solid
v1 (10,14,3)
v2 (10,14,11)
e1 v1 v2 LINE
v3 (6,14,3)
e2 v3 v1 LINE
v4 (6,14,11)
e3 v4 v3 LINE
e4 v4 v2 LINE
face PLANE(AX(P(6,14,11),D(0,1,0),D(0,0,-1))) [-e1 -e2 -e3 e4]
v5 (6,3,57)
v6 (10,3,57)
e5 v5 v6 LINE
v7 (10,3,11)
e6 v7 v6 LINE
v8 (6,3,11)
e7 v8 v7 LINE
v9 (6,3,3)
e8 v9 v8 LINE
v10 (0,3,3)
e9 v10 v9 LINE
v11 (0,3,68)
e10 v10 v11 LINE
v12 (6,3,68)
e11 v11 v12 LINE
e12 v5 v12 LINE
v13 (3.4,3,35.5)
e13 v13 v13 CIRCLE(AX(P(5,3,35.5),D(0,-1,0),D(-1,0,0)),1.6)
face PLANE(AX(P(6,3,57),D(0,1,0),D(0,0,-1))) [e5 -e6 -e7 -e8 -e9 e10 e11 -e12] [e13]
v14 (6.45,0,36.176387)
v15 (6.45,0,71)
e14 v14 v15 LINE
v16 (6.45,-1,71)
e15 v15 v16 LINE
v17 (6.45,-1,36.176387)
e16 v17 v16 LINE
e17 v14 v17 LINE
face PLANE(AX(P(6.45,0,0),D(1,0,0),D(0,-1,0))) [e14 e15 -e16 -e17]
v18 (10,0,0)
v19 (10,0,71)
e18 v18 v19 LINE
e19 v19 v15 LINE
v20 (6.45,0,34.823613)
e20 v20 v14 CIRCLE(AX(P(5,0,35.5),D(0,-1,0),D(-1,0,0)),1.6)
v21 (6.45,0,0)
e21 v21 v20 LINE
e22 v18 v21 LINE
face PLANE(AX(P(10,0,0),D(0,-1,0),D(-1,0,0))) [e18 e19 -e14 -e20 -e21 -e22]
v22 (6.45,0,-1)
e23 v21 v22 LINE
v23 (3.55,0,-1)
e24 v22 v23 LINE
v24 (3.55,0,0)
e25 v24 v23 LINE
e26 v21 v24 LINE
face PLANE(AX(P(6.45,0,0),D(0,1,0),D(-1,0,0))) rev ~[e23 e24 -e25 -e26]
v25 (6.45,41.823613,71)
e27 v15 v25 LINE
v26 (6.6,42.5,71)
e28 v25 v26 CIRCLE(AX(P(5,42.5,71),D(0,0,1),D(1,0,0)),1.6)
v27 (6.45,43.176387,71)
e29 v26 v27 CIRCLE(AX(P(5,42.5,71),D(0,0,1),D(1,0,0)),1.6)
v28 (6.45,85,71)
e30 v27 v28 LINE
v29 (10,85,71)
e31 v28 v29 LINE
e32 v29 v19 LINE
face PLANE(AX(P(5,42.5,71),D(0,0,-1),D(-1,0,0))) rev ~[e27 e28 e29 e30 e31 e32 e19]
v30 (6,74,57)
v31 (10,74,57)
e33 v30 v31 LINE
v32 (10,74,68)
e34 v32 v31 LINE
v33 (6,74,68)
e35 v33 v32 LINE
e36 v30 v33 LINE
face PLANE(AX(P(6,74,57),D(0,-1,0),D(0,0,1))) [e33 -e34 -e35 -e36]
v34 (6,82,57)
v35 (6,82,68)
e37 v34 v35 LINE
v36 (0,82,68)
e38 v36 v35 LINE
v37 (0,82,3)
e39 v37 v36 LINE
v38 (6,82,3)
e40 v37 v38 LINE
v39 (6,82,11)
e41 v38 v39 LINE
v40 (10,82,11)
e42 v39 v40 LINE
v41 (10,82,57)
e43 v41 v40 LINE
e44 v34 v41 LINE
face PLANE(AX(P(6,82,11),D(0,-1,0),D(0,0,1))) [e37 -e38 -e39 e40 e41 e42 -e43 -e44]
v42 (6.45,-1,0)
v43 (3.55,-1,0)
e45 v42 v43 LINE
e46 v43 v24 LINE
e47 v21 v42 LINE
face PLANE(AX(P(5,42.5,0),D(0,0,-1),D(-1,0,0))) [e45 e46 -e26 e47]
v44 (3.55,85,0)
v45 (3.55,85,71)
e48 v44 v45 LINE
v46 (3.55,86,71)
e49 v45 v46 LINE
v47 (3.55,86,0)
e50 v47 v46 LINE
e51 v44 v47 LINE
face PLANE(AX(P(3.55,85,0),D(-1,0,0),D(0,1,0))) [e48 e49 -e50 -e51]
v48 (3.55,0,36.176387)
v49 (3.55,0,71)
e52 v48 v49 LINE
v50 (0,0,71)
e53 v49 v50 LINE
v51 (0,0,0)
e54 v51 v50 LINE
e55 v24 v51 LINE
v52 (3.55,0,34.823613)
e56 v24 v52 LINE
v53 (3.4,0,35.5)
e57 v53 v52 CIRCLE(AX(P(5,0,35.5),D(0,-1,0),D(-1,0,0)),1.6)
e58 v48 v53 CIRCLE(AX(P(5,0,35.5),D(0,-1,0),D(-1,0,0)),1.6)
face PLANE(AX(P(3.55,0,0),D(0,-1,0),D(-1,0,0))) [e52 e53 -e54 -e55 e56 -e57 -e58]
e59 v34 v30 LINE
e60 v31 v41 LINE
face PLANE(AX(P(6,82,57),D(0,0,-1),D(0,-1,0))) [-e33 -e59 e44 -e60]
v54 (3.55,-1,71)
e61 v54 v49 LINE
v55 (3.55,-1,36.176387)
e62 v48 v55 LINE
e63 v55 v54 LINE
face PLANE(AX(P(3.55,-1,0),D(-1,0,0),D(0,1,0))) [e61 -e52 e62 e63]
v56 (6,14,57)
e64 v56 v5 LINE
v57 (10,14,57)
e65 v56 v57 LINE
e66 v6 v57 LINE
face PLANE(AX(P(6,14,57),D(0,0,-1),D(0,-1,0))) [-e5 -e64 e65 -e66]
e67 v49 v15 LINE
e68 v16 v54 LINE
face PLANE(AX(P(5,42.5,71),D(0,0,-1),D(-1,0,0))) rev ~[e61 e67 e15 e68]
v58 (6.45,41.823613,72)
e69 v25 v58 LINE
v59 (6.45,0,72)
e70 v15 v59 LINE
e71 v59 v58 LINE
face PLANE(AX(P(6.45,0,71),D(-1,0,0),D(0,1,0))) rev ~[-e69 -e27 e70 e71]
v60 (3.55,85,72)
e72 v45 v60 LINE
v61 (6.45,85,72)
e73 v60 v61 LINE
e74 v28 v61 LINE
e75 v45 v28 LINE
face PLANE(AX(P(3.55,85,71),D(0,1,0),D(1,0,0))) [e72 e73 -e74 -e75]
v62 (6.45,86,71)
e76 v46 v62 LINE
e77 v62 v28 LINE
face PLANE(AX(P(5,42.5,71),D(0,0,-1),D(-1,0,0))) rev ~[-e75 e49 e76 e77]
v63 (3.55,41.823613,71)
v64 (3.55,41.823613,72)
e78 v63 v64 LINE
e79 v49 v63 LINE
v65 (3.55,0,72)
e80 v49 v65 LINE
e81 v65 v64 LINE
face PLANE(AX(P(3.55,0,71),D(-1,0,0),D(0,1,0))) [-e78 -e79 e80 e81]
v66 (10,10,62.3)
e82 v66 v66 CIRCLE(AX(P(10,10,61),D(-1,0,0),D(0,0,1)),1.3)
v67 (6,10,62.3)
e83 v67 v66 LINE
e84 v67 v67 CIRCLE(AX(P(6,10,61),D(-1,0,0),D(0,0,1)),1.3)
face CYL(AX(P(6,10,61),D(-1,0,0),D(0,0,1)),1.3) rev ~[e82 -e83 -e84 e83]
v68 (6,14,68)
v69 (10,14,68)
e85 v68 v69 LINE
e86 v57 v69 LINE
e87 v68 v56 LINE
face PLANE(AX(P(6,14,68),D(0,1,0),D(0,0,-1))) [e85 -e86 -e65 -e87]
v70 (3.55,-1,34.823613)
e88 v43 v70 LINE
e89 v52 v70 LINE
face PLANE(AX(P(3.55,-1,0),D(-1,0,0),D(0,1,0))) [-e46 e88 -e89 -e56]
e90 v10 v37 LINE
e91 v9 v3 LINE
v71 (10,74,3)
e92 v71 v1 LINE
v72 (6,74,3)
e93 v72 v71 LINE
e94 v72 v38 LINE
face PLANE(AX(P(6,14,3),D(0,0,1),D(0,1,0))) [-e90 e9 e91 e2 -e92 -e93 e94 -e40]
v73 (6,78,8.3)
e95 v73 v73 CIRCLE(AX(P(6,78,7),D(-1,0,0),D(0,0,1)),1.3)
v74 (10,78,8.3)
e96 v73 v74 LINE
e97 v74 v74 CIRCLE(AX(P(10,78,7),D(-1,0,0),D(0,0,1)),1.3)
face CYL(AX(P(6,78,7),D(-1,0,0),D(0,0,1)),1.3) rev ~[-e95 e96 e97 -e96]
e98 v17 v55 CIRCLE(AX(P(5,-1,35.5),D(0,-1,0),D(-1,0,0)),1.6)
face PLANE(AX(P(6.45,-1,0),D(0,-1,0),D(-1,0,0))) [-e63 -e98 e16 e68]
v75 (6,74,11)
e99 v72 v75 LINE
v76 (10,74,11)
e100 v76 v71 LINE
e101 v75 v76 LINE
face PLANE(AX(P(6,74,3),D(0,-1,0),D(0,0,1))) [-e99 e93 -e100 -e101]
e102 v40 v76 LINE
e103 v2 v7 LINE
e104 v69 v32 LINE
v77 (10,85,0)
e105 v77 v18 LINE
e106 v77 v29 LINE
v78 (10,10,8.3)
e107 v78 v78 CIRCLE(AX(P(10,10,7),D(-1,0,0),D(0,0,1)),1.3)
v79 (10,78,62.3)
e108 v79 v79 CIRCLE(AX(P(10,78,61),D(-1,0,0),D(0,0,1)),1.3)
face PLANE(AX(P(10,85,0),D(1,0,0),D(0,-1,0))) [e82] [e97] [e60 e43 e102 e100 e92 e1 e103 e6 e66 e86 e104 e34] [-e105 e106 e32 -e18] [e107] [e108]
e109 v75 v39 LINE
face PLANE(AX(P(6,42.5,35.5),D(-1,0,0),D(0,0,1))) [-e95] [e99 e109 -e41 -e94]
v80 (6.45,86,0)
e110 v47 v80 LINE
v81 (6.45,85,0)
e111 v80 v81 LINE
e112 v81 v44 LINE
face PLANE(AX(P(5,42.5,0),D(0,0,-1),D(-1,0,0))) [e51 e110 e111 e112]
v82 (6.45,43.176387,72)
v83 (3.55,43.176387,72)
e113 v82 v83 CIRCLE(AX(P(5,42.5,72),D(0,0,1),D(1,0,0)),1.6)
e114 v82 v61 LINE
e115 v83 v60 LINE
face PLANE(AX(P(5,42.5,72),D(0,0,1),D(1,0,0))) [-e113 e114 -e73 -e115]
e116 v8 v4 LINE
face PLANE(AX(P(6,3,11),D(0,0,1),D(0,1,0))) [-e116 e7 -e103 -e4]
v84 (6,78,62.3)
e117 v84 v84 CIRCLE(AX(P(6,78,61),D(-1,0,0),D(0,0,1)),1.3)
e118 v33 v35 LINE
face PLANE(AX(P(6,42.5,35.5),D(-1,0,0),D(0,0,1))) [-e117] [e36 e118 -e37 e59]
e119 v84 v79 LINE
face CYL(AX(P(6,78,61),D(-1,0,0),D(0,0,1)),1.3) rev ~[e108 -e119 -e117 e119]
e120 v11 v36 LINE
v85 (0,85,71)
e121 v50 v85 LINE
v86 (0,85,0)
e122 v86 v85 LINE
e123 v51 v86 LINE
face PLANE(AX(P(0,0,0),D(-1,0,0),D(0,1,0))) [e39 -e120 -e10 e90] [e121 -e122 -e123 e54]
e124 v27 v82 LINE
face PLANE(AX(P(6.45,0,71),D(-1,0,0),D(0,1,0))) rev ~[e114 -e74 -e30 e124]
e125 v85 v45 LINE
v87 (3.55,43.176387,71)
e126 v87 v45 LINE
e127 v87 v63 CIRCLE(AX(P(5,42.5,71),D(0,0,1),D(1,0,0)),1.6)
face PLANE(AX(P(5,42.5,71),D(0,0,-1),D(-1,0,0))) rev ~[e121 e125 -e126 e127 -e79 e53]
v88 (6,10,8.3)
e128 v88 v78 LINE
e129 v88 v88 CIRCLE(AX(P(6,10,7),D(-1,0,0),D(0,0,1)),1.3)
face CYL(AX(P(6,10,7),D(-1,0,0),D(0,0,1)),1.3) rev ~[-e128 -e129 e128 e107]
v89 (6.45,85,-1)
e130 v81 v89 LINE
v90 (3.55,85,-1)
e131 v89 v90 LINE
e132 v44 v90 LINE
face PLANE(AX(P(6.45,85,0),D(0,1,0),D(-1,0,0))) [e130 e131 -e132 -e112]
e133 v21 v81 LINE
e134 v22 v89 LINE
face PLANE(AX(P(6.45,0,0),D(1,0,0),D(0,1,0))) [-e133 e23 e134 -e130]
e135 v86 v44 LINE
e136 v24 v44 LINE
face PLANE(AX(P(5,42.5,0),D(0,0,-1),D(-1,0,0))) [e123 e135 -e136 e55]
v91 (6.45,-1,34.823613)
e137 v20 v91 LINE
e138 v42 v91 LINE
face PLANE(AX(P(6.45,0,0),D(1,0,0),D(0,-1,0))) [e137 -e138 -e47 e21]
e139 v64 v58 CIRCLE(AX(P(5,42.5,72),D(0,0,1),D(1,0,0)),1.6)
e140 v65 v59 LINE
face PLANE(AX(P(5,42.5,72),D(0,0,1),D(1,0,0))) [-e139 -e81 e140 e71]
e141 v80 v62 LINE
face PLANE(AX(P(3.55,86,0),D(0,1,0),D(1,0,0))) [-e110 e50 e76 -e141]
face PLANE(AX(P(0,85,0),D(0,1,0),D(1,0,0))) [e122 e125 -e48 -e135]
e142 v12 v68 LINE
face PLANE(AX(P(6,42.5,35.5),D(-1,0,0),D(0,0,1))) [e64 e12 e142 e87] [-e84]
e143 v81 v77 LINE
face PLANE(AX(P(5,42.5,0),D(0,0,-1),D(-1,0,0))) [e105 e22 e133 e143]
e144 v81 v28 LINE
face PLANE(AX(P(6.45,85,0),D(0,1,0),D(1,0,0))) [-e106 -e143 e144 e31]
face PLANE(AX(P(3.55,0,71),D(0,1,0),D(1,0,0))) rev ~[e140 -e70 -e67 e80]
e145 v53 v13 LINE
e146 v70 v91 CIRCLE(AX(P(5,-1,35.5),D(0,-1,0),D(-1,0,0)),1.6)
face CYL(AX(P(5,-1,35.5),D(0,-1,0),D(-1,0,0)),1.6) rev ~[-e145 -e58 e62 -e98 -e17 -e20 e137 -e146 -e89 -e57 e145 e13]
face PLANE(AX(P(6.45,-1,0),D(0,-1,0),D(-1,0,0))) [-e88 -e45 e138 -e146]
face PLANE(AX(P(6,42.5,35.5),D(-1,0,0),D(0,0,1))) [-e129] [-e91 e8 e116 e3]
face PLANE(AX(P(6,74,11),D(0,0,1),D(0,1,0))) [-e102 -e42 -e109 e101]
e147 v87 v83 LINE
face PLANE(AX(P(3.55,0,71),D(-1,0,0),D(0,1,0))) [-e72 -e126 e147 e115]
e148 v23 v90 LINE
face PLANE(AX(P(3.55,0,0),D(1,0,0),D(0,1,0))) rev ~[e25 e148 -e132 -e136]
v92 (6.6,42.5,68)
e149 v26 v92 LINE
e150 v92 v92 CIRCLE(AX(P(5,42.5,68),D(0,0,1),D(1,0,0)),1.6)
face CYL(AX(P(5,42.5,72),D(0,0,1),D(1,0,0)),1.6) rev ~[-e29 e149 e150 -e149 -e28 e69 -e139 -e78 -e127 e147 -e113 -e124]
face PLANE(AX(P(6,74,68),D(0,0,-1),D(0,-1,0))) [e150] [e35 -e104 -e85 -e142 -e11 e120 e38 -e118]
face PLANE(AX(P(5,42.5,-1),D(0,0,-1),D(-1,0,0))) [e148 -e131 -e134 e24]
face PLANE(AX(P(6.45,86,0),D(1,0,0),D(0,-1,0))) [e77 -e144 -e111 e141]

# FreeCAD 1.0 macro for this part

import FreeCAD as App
import Part
import Sketcher

doc = App.newDocument("Part")
body = doc.addObject("PartDesign::Body", "Body")

sketch1 = body.newObject("Sketcher::SketchObject", "Sketch")
sketch1.AttachmentSupport = (doc.getObject("XY_Plane"), [""])
sketch1.MapMode = "FlatFace"
sketch1.addGeometry([
    Part.LineSegment(App.Vector(3.5, 85, 0), App.Vector(0, 85, 0)),
    Part.LineSegment(App.Vector(0, 85, 0), App.Vector(0, 0, 0)),
    Part.LineSegment(App.Vector(0, 0, 0), App.Vector(3.5, 0, 0)),
    Part.LineSegment(App.Vector(3.5, 0, 0), App.Vector(3.5, -1, 0)),
    Part.LineSegment(App.Vector(3.5, -1, 0), App.Vector(6.5, -1, 0)),
    Part.LineSegment(App.Vector(6.5, -1, 0), App.Vector(6.5, 0, 0)),
    Part.LineSegment(App.Vector(6.5, 0, 0), App.Vector(10, 0, 0)),
    Part.LineSegment(App.Vector(10, 0, 0), App.Vector(10, 85, 0)),
    Part.LineSegment(App.Vector(10, 85, 0), App.Vector(6.5, 85, 0)),
    Part.LineSegment(App.Vector(6.5, 85, 0), App.Vector(6.5, 86, 0)),
    Part.LineSegment(App.Vector(6.5, 86, 0), App.Vector(3.5, 86, 0)),
    Part.LineSegment(App.Vector(3.5, 86, 0), App.Vector(3.5, 85, 0)),
], False)
sketch1.addConstraint([
    Sketcher.Constraint("Coincident", 0, 2, 1, 1),
    Sketcher.Constraint("Coincident", 1, 2, 2, 1),
    Sketcher.Constraint("Coincident", 2, 2, 3, 1),
    Sketcher.Constraint("Coincident", 3, 2, 4, 1),
    Sketcher.Constraint("Coincident", 4, 2, 5, 1),
    Sketcher.Constraint("Coincident", 5, 2, 6, 1),
    Sketcher.Constraint("Coincident", 6, 2, 7, 1),
    Sketcher.Constraint("Coincident", 7, 2, 8, 1),
    Sketcher.Constraint("Coincident", 8, 2, 9, 1),
    Sketcher.Constraint("Coincident", 9, 2, 10, 1),
    Sketcher.Constraint("Coincident", 10, 2, 11, 1),
    Sketcher.Constraint("Coincident", 11, 2, 0, 1),
    Sketcher.Constraint("Horizontal", 0),
    Sketcher.Constraint("Vertical", 1),
    Sketcher.Constraint("Horizontal", 2),
    Sketcher.Constraint("Vertical", 3),
    Sketcher.Constraint("Horizontal", 4),
    Sketcher.Constraint("Vertical", 5),
    Sketcher.Constraint("Horizontal", 6),
    Sketcher.Constraint("Vertical", 7),
    Sketcher.Constraint("Horizontal", 8),
    Sketcher.Constraint("Vertical", 9),
    Sketcher.Constraint("Horizontal", 10),
    Sketcher.Constraint("Vertical", 11),
    Sketcher.Constraint("Coincident", 1, 2, -1, 1),
    Sketcher.Constraint("PointOnObject", 5, 2, -1),
    Sketcher.Constraint("Horizontal", 0, 2, 7, 2),
    Sketcher.Constraint("Vertical", 5, 2, 8, 2),
    Sketcher.Constraint("Vertical", 3, 2, 10, 2),
    Sketcher.Constraint("Equal", 2, 6),
    Sketcher.Constraint("Equal", 5, 9),
    Sketcher.Constraint("DistanceY", 1, 2, 1, 1, 85.0),
    Sketcher.Constraint("DistanceY", 3, 2, 3, 1, 1.0),
    Sketcher.Constraint("DistanceX", 4, 1, 4, 2, 2.9),
    Sketcher.Constraint("DistanceX", -1, 1, 6, 2, 10.0),
])
pad1 = body.newObject("PartDesign::Pad", "Pad")
pad1.Profile = sketch1
pad1.Length = 71

sketch2 = body.newObject("Sketcher::SketchObject", "Sketch001")
sketch2.AttachmentSupport = (doc.getObject("XY_Plane"), [""])
sketch2.MapMode = "FlatFace"
sketch2.AttachmentOffset = App.Placement(App.Vector(0, 0, 71), App.Rotation())
sketch2.addGeometry([
    Part.LineSegment(App.Vector(3.5, 85, 0), App.Vector(3.5, 0, 0)),
    Part.LineSegment(App.Vector(3.5, 0, 0), App.Vector(6.5, 0, 0)),
    Part.LineSegment(App.Vector(6.5, 0, 0), App.Vector(6.5, 85, 0)),
    Part.LineSegment(App.Vector(6.5, 85, 0), App.Vector(3.5, 85, 0)),
], False)
sketch2.addConstraint([
    Sketcher.Constraint("Coincident", 0, 2, 1, 1),
    Sketcher.Constraint("Coincident", 1, 2, 2, 1),
    Sketcher.Constraint("Coincident", 2, 2, 3, 1),
    Sketcher.Constraint("Coincident", 3, 2, 0, 1),
    Sketcher.Constraint("Vertical", 0),
    Sketcher.Constraint("Horizontal", 1),
    Sketcher.Constraint("Vertical", 2),
    Sketcher.Constraint("Horizontal", 3),
    Sketcher.Constraint("PointOnObject", 0, 2, -1),
    Sketcher.Constraint("DistanceY", 0, 2, 0, 1, 85.0),
    Sketcher.Constraint("DistanceX", 1, 1, 1, 2, 2.9),
    Sketcher.Constraint("DistanceX", -1, 1, 0, 2, 3.55),
])
pad2 = body.newObject("PartDesign::Pad", "Pad001")
pad2.Profile = sketch2
pad2.Length = 1

sketch3 = body.newObject("Sketcher::SketchObject", "Sketch002")
sketch3.AttachmentSupport = (doc.getObject("XY_Plane"), [""])
sketch3.MapMode = "FlatFace"
sketch3.addGeometry([
    Part.LineSegment(App.Vector(6.5, 85, 0), App.Vector(6.5, 0, 0)),
    Part.LineSegment(App.Vector(6.5, 0, 0), App.Vector(3.5, 0, 0)),
    Part.LineSegment(App.Vector(3.5, 0, 0), App.Vector(3.5, 85, 0)),
    Part.LineSegment(App.Vector(3.5, 85, 0), App.Vector(6.5, 85, 0)),
], False)
sketch3.addConstraint([
    Sketcher.Constraint("Coincident", 0, 2, 1, 1),
    Sketcher.Constraint("Coincident", 1, 2, 2, 1),
    Sketcher.Constraint("Coincident", 2, 2, 3, 1),
    Sketcher.Constraint("Coincident", 3, 2, 0, 1),
    Sketcher.Constraint("Vertical", 0),
    Sketcher.Constraint("Horizontal", 1),
    Sketcher.Constraint("Vertical", 2),
    Sketcher.Constraint("Horizontal", 3),
    Sketcher.Constraint("PointOnObject", 0, 2, -1),
    Sketcher.Constraint("DistanceY", 0, 2, 0, 1, 85.0),
    Sketcher.Constraint("DistanceX", 1, 2, 1, 1, 2.9),
    Sketcher.Constraint("DistanceX", -1, 1, 0, 2, 6.45),
])
pad3 = body.newObject("PartDesign::Pad", "Pad002")
pad3.Profile = sketch3
pad3.Length = 1
pad3.Reversed = True

sketch4 = body.newObject("Sketcher::SketchObject", "Sketch003")
sketch4.AttachmentSupport = (doc.getObject("YZ_Plane"), [""])
sketch4.MapMode = "FlatFace"
sketch4.addGeometry([
    Part.LineSegment(App.Vector(82, 3, 0), App.Vector(3, 3, 0)),
    Part.LineSegment(App.Vector(3, 3, 0), App.Vector(3, 68, 0)),
    Part.LineSegment(App.Vector(3, 68, 0), App.Vector(82, 68, 0)),
    Part.LineSegment(App.Vector(82, 68, 0), App.Vector(82, 3, 0)),
], False)
sketch4.addConstraint([
    Sketcher.Constraint("Coincident", 0, 2, 1, 1),
    Sketcher.Constraint("Coincident", 1, 2, 2, 1),
    Sketcher.Constraint("Coincident", 2, 2, 3, 1),
    Sketcher.Constraint("Coincident", 3, 2, 0, 1),
    Sketcher.Constraint("Horizontal", 0),
    Sketcher.Constraint("Vertical", 1),
    Sketcher.Constraint("Horizontal", 2),
    Sketcher.Constraint("Vertical", 3),
    Sketcher.Constraint("DistanceX", 0, 2, 0, 1, 79.0),
    Sketcher.Constraint("DistanceY", 1, 1, 1, 2, 65.0),
    Sketcher.Constraint("DistanceX", -1, 1, 0, 2, 3.0),
    Sketcher.Constraint("DistanceY", -1, 1, 0, 2, 3.0),
])
pocket1 = body.newObject("PartDesign::Pocket", "Pocket")
pocket1.Profile = sketch4
pocket1.Length = 6
pocket1.Reversed = True

sketch5 = body.newObject("Sketcher::SketchObject", "Sketch004")
sketch5.AttachmentSupport = (doc.getObject("YZ_Plane"), [""])
sketch5.MapMode = "FlatFace"
sketch5.AttachmentOffset = App.Placement(App.Vector(0, 0, 6), App.Rotation())
sketch5.addGeometry([
    Part.Circle(App.Vector(78, 7, 0), App.Vector(0, 0, 1), 1.3),
    Part.Circle(App.Vector(78, 61, 0), App.Vector(0, 0, 1), 1.3),
    Part.Circle(App.Vector(10, 61, 0), App.Vector(0, 0, 1), 1.3),
    Part.Circle(App.Vector(10, 7, 0), App.Vector(0, 0, 1), 1.3),
], False)
sketch5.addConstraint([
    Sketcher.Constraint("Equal", 0, 1),
    Sketcher.Constraint("Equal", 1, 2),
    Sketcher.Constraint("Equal", 2, 3),
    Sketcher.Constraint("Horizontal", 1, 3, 2, 3),
    Sketcher.Constraint("Horizontal", 0, 3, 3, 3),
    Sketcher.Constraint("Vertical", 0, 3, 1, 3),
    Sketcher.Constraint("Vertical", 2, 3, 3, 3),
    Sketcher.Constraint("Diameter", 0, 2.6),
    Sketcher.Constraint("DistanceX", -1, 1, 0, 3, 78.0),
    Sketcher.Constraint("DistanceY", -1, 1, 0, 3, 7.0),
    Sketcher.Constraint("DistanceY", -1, 1, 1, 3, 61.0),
    Sketcher.Constraint("DistanceX", -1, 1, 2, 3, 10.0),
])
pocket2 = body.newObject("PartDesign::Pocket", "Pocket001")
pocket2.Profile = sketch5
pocket2.Type = "ThroughAll"
pocket2.Reversed = True

sketch6 = body.newObject("Sketcher::SketchObject", "Sketch005")
sketch6.AttachmentSupport = (doc.getObject("XY_Plane"), [""])
sketch6.MapMode = "FlatFace"
sketch6.AttachmentOffset = App.Placement(App.Vector(0, 0, 72), App.Rotation())
sketch6.addGeometry(Part.Circle(App.Vector(5, 42.5, 0), App.Vector(0, 0, 1), 1.6), False)
sketch6.addConstraint([
    Sketcher.Constraint("Diameter", 0, 3.2),
    Sketcher.Constraint("DistanceX", -1, 1, 0, 3, 5.0),
    Sketcher.Constraint("DistanceY", -1, 1, 0, 3, 42.5),
])
pocket3 = body.newObject("PartDesign::Pocket", "Pocket002")
pocket3.Profile = sketch6
pocket3.Length = 4

sketch7 = body.newObject("Sketcher::SketchObject", "Sketch006")
sketch7.AttachmentSupport = (doc.getObject("YZ_Plane"), [""])
sketch7.MapMode = "FlatFace"
sketch7.AttachmentOffset = App.Placement(App.Vector(0, 0, 6), App.Rotation())
sketch7.addGeometry([
    Part.LineSegment(App.Vector(74, 11, 0), App.Vector(74, 3, 0)),
    Part.LineSegment(App.Vector(74, 3, 0), App.Vector(14, 3, 0)),
    Part.LineSegment(App.Vector(14, 3, 0), App.Vector(14, 11, 0)),
    Part.LineSegment(App.Vector(14, 11, 0), App.Vector(3, 11, 0)),
    Part.LineSegment(App.Vector(3, 11, 0), App.Vector(3, 57, 0)),
    Part.LineSegment(App.Vector(3, 57, 0), App.Vector(14, 57, 0)),
    Part.LineSegment(App.Vector(14, 57, 0), App.Vector(14, 68, 0)),
    Part.LineSegment(App.Vector(14, 68, 0), App.Vector(74, 68, 0)),
    Part.LineSegment(App.Vector(74, 68, 0), App.Vector(74, 57, 0)),
    Part.LineSegment(App.Vector(74, 57, 0), App.Vector(82, 57, 0)),
    Part.LineSegment(App.Vector(82, 57, 0), App.Vector(82, 11, 0)),
    Part.LineSegment(App.Vector(82, 11, 0), App.Vector(74, 11, 0)),
], False)
sketch7.addConstraint([
    Sketcher.Constraint("Coincident", 0, 2, 1, 1),
    Sketcher.Constraint("Coincident", 1, 2, 2, 1),
    Sketcher.Constraint("Coincident", 2, 2, 3, 1),
    Sketcher.Constraint("Coincident", 3, 2, 4, 1),
    Sketcher.Constraint("Coincident", 4, 2, 5, 1),
    Sketcher.Constraint("Coincident", 5, 2, 6, 1),
    Sketcher.Constraint("Coincident", 6, 2, 7, 1),
    Sketcher.Constraint("Coincident", 7, 2, 8, 1),
    Sketcher.Constraint("Coincident", 8, 2, 9, 1),
    Sketcher.Constraint("Coincident", 9, 2, 10, 1),
    Sketcher.Constraint("Coincident", 10, 2, 11, 1),
    Sketcher.Constraint("Coincident", 11, 2, 0, 1),
    Sketcher.Constraint("Vertical", 0),
    Sketcher.Constraint("Horizontal", 1),
    Sketcher.Constraint("Vertical", 2),
    Sketcher.Constraint("Horizontal", 3),
    Sketcher.Constraint("Vertical", 4),
    Sketcher.Constraint("Horizontal", 5),
    Sketcher.Constraint("Vertical", 6),
    Sketcher.Constraint("Horizontal", 7),
    Sketcher.Constraint("Vertical", 8),
    Sketcher.Constraint("Horizontal", 9),
    Sketcher.Constraint("Vertical", 10),
    Sketcher.Constraint("Horizontal", 11),
    Sketcher.Constraint("Horizontal", 5, 2, 8, 2),
    Sketcher.Constraint("Horizontal", 3, 2, 10, 2),
    Sketcher.Constraint("Vertical", 2, 2, 5, 2),
    Sketcher.Constraint("Vertical", 0, 2, 7, 2),
    Sketcher.Constraint("Equal", 11, 0),
    Sketcher.Constraint("Equal", 5, 6),
    Sketcher.Constraint("DistanceX", 1, 2, 1, 1, 60.0),
    Sketcher.Constraint("DistanceX", 3, 2, 3, 1, 11.0),
    Sketcher.Constraint("DistanceX", 9, 1, 9, 2, 8.0),
    Sketcher.Constraint("DistanceY", 4, 1, 4, 2, 46.0),
    Sketcher.Constraint("DistanceX", -1, 1, 0, 2, 74.0),
    Sketcher.Constraint("DistanceY", -1, 1, 0, 2, 3.0),
])
pocket4 = body.newObject("PartDesign::Pocket", "Pocket003")
pocket4.Profile = sketch7
pocket4.Type = "ThroughAll"
pocket4.Reversed = True

sketch8 = body.newObject("Sketcher::SketchObject", "Sketch007")
sketch8.AttachmentSupport = (doc.getObject("XZ_Plane"), [""])
sketch8.MapMode = "FlatFace"
sketch8.AttachmentOffset = App.Placement(App.Vector(0, 0, 1), App.Rotation())
sketch8.addGeometry(Part.Circle(App.Vector(5, 35.5, 0), App.Vector(0, 0, 1), 1.6), False)
sketch8.addConstraint([
    Sketcher.Constraint("Diameter", 0, 3.2),
    Sketcher.Constraint("DistanceX", -1, 1, 0, 3, 5.0),
    Sketcher.Constraint("DistanceY", -1, 1, 0, 3, 35.5),
])
pocket5 = body.newObject("PartDesign::Pocket", "Pocket004")
pocket5.Profile = sketch8
pocket5.Type = "UpToFirst"

doc.recompute()
